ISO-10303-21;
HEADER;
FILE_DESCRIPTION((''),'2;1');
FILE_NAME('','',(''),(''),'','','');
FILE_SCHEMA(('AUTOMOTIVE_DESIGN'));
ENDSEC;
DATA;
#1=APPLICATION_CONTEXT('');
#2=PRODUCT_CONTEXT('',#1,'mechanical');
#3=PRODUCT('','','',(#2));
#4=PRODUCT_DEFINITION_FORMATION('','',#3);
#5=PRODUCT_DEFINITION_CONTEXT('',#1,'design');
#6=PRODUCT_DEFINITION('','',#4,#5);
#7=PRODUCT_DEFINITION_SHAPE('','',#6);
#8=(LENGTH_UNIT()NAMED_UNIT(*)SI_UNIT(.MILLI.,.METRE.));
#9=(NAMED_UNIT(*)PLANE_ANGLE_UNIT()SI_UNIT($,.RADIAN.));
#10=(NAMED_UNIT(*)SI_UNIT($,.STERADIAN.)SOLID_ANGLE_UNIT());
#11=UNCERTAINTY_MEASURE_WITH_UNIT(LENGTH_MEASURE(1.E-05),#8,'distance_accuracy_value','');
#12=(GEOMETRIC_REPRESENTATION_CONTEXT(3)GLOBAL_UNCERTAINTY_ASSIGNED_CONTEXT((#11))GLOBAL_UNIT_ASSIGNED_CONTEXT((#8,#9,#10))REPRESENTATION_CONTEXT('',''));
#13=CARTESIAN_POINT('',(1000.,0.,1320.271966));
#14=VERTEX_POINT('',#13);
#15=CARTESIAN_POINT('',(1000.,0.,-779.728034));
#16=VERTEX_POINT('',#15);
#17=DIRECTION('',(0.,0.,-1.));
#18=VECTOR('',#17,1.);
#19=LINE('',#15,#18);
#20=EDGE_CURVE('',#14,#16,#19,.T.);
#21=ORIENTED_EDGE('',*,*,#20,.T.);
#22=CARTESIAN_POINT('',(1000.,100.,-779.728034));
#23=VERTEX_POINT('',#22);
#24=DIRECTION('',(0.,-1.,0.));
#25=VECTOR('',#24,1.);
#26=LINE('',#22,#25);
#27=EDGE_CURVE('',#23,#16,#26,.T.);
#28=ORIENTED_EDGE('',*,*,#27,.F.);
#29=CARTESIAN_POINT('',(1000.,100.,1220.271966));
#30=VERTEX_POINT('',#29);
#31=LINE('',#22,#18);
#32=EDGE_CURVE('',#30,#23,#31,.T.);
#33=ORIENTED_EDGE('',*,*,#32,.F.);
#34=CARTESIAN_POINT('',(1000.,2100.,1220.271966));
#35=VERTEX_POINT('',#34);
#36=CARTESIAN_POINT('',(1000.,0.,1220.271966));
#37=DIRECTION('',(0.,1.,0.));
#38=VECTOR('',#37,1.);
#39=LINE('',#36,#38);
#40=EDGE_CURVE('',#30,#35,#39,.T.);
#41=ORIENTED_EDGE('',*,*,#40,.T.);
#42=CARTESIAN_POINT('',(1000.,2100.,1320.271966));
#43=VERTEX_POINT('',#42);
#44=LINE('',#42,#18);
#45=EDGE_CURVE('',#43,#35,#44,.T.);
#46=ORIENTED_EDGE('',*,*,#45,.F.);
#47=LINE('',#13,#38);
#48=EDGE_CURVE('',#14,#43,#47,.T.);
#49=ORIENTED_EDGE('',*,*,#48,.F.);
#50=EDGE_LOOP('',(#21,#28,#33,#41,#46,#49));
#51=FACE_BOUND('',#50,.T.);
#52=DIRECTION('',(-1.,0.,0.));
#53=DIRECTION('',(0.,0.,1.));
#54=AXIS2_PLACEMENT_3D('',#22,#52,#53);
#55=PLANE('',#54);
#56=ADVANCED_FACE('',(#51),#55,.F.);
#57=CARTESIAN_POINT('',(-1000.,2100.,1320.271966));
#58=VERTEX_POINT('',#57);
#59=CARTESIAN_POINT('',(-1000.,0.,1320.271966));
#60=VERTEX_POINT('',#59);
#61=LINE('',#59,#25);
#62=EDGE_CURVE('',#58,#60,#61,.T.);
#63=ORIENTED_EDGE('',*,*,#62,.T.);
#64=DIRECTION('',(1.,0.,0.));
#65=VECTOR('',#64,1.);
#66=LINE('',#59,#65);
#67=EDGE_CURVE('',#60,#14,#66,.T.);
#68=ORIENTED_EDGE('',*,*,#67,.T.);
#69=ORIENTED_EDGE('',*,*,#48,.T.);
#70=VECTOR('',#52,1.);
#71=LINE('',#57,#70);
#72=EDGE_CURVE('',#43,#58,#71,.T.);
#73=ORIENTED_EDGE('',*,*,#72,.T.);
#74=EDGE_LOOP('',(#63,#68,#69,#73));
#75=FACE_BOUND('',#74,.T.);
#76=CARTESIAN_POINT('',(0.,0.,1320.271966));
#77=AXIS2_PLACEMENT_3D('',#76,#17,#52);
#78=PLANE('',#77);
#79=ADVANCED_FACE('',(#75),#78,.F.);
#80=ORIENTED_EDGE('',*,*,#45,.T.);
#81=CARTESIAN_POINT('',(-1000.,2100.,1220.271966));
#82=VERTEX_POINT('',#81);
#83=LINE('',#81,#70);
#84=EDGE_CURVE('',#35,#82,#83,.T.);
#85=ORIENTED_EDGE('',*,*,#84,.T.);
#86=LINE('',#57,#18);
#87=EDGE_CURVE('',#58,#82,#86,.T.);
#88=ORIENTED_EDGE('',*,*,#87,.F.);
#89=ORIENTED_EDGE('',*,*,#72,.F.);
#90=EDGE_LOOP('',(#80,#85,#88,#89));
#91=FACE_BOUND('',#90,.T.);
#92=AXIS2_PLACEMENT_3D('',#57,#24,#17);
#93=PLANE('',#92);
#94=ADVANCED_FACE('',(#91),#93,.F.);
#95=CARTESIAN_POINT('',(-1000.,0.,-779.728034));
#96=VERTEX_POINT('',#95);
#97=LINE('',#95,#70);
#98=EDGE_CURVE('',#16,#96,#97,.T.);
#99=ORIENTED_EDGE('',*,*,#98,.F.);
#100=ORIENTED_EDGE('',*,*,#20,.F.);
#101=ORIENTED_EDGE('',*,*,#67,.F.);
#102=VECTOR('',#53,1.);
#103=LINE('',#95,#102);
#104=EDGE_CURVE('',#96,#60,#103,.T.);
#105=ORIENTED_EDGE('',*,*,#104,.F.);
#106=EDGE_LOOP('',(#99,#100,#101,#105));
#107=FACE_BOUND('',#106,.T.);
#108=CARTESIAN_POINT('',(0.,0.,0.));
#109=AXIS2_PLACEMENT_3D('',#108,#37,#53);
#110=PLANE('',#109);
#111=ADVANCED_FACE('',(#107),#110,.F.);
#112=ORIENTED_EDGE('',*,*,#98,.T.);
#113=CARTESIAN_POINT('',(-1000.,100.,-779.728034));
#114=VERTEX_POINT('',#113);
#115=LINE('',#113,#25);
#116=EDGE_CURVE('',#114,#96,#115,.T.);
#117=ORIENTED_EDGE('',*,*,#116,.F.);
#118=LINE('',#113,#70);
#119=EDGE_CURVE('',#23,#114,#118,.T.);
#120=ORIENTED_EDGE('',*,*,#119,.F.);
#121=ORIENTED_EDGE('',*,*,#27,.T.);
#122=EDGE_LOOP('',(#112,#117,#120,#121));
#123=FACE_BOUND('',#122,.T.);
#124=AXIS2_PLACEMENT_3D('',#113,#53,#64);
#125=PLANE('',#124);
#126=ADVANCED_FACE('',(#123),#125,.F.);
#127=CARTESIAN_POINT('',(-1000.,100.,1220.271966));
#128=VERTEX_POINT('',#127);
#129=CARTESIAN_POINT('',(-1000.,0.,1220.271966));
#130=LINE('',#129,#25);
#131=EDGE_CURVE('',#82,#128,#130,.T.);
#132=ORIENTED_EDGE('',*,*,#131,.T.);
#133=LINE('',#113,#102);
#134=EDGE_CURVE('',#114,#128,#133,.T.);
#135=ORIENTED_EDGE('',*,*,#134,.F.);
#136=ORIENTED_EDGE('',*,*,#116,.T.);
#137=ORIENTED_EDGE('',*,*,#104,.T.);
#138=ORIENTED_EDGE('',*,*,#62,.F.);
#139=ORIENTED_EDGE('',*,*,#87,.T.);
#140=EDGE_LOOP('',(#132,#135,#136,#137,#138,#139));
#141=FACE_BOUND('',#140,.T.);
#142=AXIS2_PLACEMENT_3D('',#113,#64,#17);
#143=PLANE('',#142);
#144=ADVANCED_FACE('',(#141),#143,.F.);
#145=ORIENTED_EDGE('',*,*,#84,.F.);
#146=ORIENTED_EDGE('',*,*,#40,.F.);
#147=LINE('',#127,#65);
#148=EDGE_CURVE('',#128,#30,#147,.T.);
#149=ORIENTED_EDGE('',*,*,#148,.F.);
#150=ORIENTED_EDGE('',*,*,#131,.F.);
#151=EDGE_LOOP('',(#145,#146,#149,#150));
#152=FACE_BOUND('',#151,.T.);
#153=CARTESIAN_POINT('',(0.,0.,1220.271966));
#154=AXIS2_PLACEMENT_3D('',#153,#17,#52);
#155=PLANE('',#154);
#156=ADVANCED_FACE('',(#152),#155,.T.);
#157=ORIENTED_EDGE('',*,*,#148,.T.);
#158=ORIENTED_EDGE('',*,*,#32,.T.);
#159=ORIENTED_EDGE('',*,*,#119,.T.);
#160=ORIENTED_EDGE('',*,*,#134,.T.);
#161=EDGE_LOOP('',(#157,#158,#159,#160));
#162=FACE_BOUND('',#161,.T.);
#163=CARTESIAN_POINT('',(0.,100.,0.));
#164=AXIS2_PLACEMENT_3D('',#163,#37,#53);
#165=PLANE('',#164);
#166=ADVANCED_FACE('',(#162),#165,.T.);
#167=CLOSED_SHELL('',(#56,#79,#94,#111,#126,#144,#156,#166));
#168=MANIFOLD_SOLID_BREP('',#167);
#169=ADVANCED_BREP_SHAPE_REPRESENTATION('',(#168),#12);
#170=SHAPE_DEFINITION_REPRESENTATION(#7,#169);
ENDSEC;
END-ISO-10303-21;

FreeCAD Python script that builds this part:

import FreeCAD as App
import Part
import Sketcher
Q = App.Units.Quantity


def add_polygon(sketch, points):
    """Adds a closed chain of lines whose ends are joined by coincident constraints."""
    first, n = sketch.GeometryCount, len(points)
    for a, b in zip(points, points[1:] + points[:1]):
        sketch.addGeometry(Part.LineSegment(App.Vector(*a, 0), App.Vector(*b, 0)), False)
    for i in range(n):
        sketch.addConstraint(Sketcher.Constraint("Coincident", first + i, 2, first + (i + 1) % n, 1))

doc = App.newDocument("Part")
body = doc.addObject("PartDesign::Body", "Body")

# Sketch on XZ plane
sketch1 = body.newObject("Sketcher::SketchObject", "Sketch")
sketch1.AttachmentSupport = (doc.getObject("XZ_Plane"), [""])
sketch1.MapMode = "FlatFace"
add_polygon(sketch1, [(-1000, -780), (-1000, 1220), (1000, 1220), (1000, -780)])  # lines 0-3
sketch1.addConstraint(Sketcher.Constraint("Vertical", 0))
sketch1.addConstraint(Sketcher.Constraint("Horizontal", 1))
sketch1.addConstraint(Sketcher.Constraint("Vertical", 2))
sketch1.addConstraint(Sketcher.Constraint("Horizontal", 3))
sketch1.addConstraint(Sketcher.Constraint("Equal", 3, 0))
sketch1.addConstraint(Sketcher.Constraint("DistanceX", 1, 1, 1, 2, Q("2000 mm")))
sketch1.addConstraint(Sketcher.Constraint("DistanceX", 0, 2, -1, 1, Q("1000 mm")))
sketch1.addConstraint(Sketcher.Constraint("DistanceY", -1, 1, 0, 2, Q("1220.271966 mm")))
pad1 = body.newObject("PartDesign::Pad", "Pad")
pad1.Profile = sketch1
pad1.Length = 100
pad1.Reversed = True

# Sketch on XY plane
sketch2 = body.newObject("Sketcher::SketchObject", "Sketch001")
sketch2.AttachmentSupport = (doc.getObject("XY_Plane"), [""])
sketch2.MapMode = "FlatFace"
sketch2.AttachmentOffset = App.Placement(App.Vector(0, 0, 1220.271966), App.Rotation())
add_polygon(sketch2, [(-1000, 2100), (-1000, 0), (1000, 0), (1000, 2100)])  # lines 0-3
sketch2.addConstraint(Sketcher.Constraint("Vertical", 0))
sketch2.addConstraint(Sketcher.Constraint("Horizontal", 1))
sketch2.addConstraint(Sketcher.Constraint("Vertical", 2))
sketch2.addConstraint(Sketcher.Constraint("Horizontal", 3))
sketch2.addConstraint(Sketcher.Constraint("Symmetric", 0, 2, 1, 2, -1, 1))
sketch2.addConstraint(Sketcher.Constraint("DistanceX", 1, 1, 1, 2, Q("2000 mm")))
sketch2.addConstraint(Sketcher.Constraint("DistanceY", 0, 2, 0, 1, Q("2100 mm")))
pad2 = body.newObject("PartDesign::Pad", "Pad001")
pad2.Profile = sketch2
pad2.Length = 100

doc.recompute()
